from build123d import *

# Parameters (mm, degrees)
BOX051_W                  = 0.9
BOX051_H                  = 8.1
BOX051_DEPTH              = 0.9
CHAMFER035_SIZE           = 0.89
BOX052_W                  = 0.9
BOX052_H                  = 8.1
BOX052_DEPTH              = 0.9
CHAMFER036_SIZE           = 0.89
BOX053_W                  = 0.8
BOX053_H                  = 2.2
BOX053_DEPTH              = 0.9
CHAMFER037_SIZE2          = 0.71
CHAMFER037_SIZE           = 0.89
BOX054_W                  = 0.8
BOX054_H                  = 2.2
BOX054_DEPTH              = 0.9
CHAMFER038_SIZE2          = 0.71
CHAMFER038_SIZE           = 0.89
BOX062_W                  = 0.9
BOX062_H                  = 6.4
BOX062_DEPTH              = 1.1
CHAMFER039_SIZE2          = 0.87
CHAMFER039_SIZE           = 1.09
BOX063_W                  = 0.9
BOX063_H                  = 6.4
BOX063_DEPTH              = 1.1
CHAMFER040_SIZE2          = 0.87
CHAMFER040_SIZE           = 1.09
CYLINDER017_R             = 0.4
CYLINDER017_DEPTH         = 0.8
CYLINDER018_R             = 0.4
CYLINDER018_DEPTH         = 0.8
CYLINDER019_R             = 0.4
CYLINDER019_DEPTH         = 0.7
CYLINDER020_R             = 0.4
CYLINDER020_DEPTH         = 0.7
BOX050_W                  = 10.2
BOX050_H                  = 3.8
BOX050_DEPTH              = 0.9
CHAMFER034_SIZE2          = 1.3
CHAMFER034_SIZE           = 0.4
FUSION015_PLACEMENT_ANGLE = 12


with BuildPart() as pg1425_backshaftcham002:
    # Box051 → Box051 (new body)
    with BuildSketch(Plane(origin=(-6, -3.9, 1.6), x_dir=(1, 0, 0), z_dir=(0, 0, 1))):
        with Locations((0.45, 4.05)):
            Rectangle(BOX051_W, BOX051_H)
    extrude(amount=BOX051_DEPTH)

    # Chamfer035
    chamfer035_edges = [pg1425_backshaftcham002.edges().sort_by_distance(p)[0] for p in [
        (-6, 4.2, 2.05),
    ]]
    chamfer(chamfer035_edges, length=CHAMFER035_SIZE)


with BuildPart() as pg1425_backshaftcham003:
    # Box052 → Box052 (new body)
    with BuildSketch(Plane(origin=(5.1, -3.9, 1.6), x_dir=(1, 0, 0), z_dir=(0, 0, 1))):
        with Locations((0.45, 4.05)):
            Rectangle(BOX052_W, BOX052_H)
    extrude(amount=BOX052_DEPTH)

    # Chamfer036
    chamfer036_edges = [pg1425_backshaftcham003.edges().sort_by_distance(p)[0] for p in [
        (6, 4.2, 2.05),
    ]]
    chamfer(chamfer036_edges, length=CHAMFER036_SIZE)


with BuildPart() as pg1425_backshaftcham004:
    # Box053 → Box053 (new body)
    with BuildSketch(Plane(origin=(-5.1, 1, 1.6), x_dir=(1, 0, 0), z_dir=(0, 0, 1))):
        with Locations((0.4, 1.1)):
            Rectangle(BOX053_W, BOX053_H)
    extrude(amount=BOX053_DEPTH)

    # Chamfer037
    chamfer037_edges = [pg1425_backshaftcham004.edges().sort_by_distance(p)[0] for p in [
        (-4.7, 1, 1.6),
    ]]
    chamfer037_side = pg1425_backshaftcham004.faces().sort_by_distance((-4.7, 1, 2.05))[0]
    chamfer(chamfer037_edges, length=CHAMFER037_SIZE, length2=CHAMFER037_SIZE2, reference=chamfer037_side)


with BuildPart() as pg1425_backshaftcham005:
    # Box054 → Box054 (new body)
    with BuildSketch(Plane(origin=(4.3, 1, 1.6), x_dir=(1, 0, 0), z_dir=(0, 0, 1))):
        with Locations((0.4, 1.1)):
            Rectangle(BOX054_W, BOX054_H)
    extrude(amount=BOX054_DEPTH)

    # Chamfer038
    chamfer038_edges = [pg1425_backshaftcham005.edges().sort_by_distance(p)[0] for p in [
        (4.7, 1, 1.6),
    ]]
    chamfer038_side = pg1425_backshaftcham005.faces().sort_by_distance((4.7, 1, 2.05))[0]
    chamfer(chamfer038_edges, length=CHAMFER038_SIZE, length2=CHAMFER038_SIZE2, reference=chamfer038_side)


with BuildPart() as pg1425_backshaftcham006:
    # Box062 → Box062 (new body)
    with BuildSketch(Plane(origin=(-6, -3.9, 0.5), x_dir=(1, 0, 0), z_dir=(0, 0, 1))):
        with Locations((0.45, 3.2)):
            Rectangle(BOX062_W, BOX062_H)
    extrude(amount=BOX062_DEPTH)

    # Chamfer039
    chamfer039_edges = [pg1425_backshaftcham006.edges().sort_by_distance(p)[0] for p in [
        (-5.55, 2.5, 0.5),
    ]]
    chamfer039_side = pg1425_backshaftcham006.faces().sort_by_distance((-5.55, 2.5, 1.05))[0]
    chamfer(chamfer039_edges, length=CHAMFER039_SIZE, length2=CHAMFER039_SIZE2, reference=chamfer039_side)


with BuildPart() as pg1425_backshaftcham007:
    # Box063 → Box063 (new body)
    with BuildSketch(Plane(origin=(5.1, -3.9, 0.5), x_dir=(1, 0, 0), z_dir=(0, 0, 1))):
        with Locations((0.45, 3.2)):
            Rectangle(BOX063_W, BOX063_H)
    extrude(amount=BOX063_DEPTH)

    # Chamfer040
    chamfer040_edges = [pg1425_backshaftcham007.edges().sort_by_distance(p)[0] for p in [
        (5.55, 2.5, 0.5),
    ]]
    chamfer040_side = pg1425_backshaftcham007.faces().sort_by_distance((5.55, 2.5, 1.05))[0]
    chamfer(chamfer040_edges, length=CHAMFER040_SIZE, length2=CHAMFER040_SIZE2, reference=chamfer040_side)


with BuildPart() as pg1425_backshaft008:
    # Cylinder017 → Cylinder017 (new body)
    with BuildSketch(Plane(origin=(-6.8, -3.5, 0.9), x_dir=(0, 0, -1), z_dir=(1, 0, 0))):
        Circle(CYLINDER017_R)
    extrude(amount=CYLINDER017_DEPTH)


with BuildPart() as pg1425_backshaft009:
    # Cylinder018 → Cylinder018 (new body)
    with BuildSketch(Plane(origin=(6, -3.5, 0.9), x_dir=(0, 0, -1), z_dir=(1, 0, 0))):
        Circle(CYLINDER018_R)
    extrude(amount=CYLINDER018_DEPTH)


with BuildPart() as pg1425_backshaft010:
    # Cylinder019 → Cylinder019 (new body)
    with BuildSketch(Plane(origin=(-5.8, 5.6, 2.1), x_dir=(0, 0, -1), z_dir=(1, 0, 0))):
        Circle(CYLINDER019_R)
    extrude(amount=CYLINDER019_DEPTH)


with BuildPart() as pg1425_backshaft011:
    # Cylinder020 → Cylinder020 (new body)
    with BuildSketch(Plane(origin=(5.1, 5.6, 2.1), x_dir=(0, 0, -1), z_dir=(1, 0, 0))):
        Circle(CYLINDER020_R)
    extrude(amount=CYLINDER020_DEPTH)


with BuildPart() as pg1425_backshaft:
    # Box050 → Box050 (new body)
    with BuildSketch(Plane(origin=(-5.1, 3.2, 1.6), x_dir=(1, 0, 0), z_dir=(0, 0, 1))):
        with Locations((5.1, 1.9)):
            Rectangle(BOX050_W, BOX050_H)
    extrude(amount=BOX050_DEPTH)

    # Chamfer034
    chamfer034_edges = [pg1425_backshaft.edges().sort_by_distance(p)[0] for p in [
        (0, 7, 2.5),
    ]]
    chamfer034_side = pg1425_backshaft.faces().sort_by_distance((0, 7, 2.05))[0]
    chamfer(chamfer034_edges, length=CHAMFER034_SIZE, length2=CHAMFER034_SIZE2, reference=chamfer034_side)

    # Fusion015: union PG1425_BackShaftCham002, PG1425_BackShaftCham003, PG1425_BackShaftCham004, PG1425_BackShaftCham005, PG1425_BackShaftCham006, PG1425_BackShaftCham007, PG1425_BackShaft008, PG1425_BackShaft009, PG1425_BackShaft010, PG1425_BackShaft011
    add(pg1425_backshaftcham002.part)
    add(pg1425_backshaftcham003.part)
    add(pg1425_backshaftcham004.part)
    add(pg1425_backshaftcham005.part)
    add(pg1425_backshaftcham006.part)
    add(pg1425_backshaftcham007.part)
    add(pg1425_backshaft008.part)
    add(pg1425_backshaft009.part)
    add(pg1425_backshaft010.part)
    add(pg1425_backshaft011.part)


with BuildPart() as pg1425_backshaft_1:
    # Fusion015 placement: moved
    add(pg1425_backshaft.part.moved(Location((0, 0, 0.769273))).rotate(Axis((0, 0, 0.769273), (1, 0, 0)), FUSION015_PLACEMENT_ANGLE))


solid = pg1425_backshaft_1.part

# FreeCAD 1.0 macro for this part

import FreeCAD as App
import Part
import Sketcher


def edges_at(feature, points):
    """Names of the edges that pass closest to the given points."""
    edges = feature.Shape.Edges
    near = lambda p: min(range(len(edges)), key=lambda i: edges[i].distToShape(Part.Vertex(*p))[0])
    return sorted({f"Edge{near(p) + 1}" for p in points})

doc = App.newDocument("Part")
params = doc.addObject("Spreadsheet::Sheet", "Params")
for row, (alias, value) in enumerate([
    ("sketch1_width", "0.9 mm"),
    ("sketch1_height", "8.1 mm"),
    ("pad1_length", "0.9 mm"),
    ("chamfer_size", "0.89 mm"),
    ("sketch2_width", "0.9 mm"),
    ("sketch2_height", "8.1 mm"),
    ("pad2_length", "0.9 mm"),
    ("chamfer2_size", "0.89 mm"),
    ("sketch3_width", "0.8 mm"),
    ("sketch3_height", "2.2 mm"),
    ("pad3_length", "0.9 mm"),
    ("chamfer3_size", "0.89 mm"),
    ("chamfer3_size2", "0.71 mm"),
    ("sketch4_width", "0.8 mm"),
    ("sketch4_height", "2.2 mm"),
    ("pad4_length", "0.9 mm"),
    ("chamfer4_size", "0.89 mm"),
    ("chamfer4_size2", "0.71 mm"),
    ("sketch5_width", "0.9 mm"),
    ("sketch5_height", "6.4 mm"),
    ("pad5_length", "1.1 mm"),
    ("chamfer5_size", "1.09 mm"),
    ("chamfer5_size2", "0.87 mm"),
    ("sketch6_width", "0.9 mm"),
    ("sketch6_height", "6.4 mm"),
    ("pad6_length", "1.1 mm"),
    ("chamfer6_size", "1.09 mm"),
    ("chamfer6_size2", "0.87 mm"),
    ("sketch7_diameter", "0.8 mm"),
    ("pad7_length", "0.8 mm"),
    ("sketch8_diameter", "0.8 mm"),
    ("pad8_length", "0.8 mm"),
    ("sketch9_diameter", "0.8 mm"),
    ("pad9_length", "0.7 mm"),
    ("sketch10_diameter", "0.8 mm"),
    ("pad10_length", "0.7 mm"),
    ("sketch11_width", "10.2 mm"),
    ("sketch11_height", "3.8 mm"),
    ("pad11_length", "0.9 mm"),
    ("chamfer7_size", "0.4 mm"),
    ("chamfer7_size2", "1.3 mm"),
], start=1):
    params.set(f"A{row}", alias)
    params.set(f"B{row}", "=" + value)
    params.setAlias(f"B{row}", alias)

body = doc.addObject("PartDesign::Body", "Body")

# Sketch on XY plane
sketch1 = doc.addObject("Sketcher::SketchObject", "Sketch")
body.addObject(sketch1)
sketch1.AttachmentSupport = (doc.XY_Plane, [""])
sketch1.MapMode = "FlatFace"
sketch1.AttachmentOffset = App.Placement(App.Vector(0, 0, 1.6), App.Rotation())
sketch1.addGeometry(Part.LineSegment(App.Vector(-6, 4.2, 0), App.Vector(-6, -3.9, 0)), False)
sketch1.addGeometry(Part.LineSegment(App.Vector(-6, -3.9, 0), App.Vector(-5.1, -3.9, 0)), False)
sketch1.addGeometry(Part.LineSegment(App.Vector(-5.1, -3.9, 0), App.Vector(-5.1, 4.2, 0)), False)
sketch1.addGeometry(Part.LineSegment(App.Vector(-5.1, 4.2, 0), App.Vector(-6, 4.2, 0)), False)
sketch1.addConstraint(Sketcher.Constraint("Coincident", 0, 2, 1, 1))
sketch1.addConstraint(Sketcher.Constraint("Coincident", 1, 2, 2, 1))
sketch1.addConstraint(Sketcher.Constraint("Coincident", 2, 2, 3, 1))
sketch1.addConstraint(Sketcher.Constraint("Coincident", 3, 2, 0, 1))
sketch1.addConstraint(Sketcher.Constraint("Vertical", 0))
sketch1.addConstraint(Sketcher.Constraint("Horizontal", 1))
sketch1.addConstraint(Sketcher.Constraint("Vertical", 2))
sketch1.addConstraint(Sketcher.Constraint("Horizontal", 3))
sketch1.addConstraint(Sketcher.Constraint("DistanceX", 1, 1, 1, 2, 0.9))
sketch1.addConstraint(Sketcher.Constraint("DistanceY", 0, 2, 0, 1, 8.1))
sketch1.addConstraint(Sketcher.Constraint("DistanceX", 0, 2, -1, 1, 6.0))
sketch1.addConstraint(Sketcher.Constraint("DistanceY", 0, 2, -1, 1, 3.9))
sketch1.setExpression("Constraints[8]", "Params.sketch1_width")
sketch1.setExpression("Constraints[9]", "Params.sketch1_height")
pad1 = doc.addObject("PartDesign::Pad", "Pad")
body.addObject(pad1)
pad1.Profile = sketch1
pad1.setExpression("Length", "Params.pad1_length")
doc.recompute()

chamfer = doc.addObject("PartDesign::Chamfer", "Chamfer")
body.addObject(chamfer)
chamfer.Base = (pad1, edges_at(pad1, [(-6, 4.2, 2.05)]))
chamfer.setExpression("Size", "Params.chamfer_size")
body2 = doc.addObject("PartDesign::Body", "Body001")

# Sketch on XY plane
sketch2 = doc.addObject("Sketcher::SketchObject", "Sketch001")
body2.addObject(sketch2)
sketch2.AttachmentSupport = (doc.getObject("XY_Plane001"), [""])
sketch2.MapMode = "FlatFace"
sketch2.AttachmentOffset = App.Placement(App.Vector(0, 0, 1.6), App.Rotation())
sketch2.addGeometry(Part.LineSegment(App.Vector(5.1, 4.2, 0), App.Vector(5.1, -3.9, 0)), False)
sketch2.addGeometry(Part.LineSegment(App.Vector(5.1, -3.9, 0), App.Vector(6, -3.9, 0)), False)
sketch2.addGeometry(Part.LineSegment(App.Vector(6, -3.9, 0), App.Vector(6, 4.2, 0)), False)
sketch2.addGeometry(Part.LineSegment(App.Vector(6, 4.2, 0), App.Vector(5.1, 4.2, 0)), False)
sketch2.addConstraint(Sketcher.Constraint("Coincident", 0, 2, 1, 1))
sketch2.addConstraint(Sketcher.Constraint("Coincident", 1, 2, 2, 1))
sketch2.addConstraint(Sketcher.Constraint("Coincident", 2, 2, 3, 1))
sketch2.addConstraint(Sketcher.Constraint("Coincident", 3, 2, 0, 1))
sketch2.addConstraint(Sketcher.Constraint("Vertical", 0))
sketch2.addConstraint(Sketcher.Constraint("Horizontal", 1))
sketch2.addConstraint(Sketcher.Constraint("Vertical", 2))
sketch2.addConstraint(Sketcher.Constraint("Horizontal", 3))
sketch2.addConstraint(Sketcher.Constraint("DistanceX", 1, 1, 1, 2, 0.9))
sketch2.addConstraint(Sketcher.Constraint("DistanceY", 0, 2, 0, 1, 8.1))
sketch2.addConstraint(Sketcher.Constraint("DistanceX", -1, 1, 1, 2, 6.0))
sketch2.addConstraint(Sketcher.Constraint("DistanceY", 0, 2, -1, 1, 3.9))
sketch2.setExpression("Constraints[8]", "Params.sketch2_width")
sketch2.setExpression("Constraints[9]", "Params.sketch2_height")
pad2 = doc.addObject("PartDesign::Pad", "Pad001")
body2.addObject(pad2)
pad2.Profile = sketch2
pad2.setExpression("Length", "Params.pad2_length")
doc.recompute()

chamfer2 = doc.addObject("PartDesign::Chamfer", "Chamfer001")
body2.addObject(chamfer2)
chamfer2.Base = (pad2, edges_at(pad2, [(6, 4.2, 2.05)]))
chamfer2.setExpression("Size", "Params.chamfer2_size")
body3 = doc.addObject("PartDesign::Body", "Body002")

# Sketch on XY plane
sketch3 = doc.addObject("Sketcher::SketchObject", "Sketch002")
body3.addObject(sketch3)
sketch3.AttachmentSupport = (doc.getObject("XY_Plane002"), [""])
sketch3.MapMode = "FlatFace"
sketch3.AttachmentOffset = App.Placement(App.Vector(0, 0, 1.6), App.Rotation())
sketch3.addGeometry(Part.LineSegment(App.Vector(-5.1, 3.2, 0), App.Vector(-5.1, 1, 0)), False)
sketch3.addGeometry(Part.LineSegment(App.Vector(-5.1, 1, 0), App.Vector(-4.3, 1, 0)), False)
sketch3.addGeometry(Part.LineSegment(App.Vector(-4.3, 1, 0), App.Vector(-4.3, 3.2, 0)), False)
sketch3.addGeometry(Part.LineSegment(App.Vector(-4.3, 3.2, 0), App.Vector(-5.1, 3.2, 0)), False)
sketch3.addConstraint(Sketcher.Constraint("Coincident", 0, 2, 1, 1))
sketch3.addConstraint(Sketcher.Constraint("Coincident", 1, 2, 2, 1))
sketch3.addConstraint(Sketcher.Constraint("Coincident", 2, 2, 3, 1))
sketch3.addConstraint(Sketcher.Constraint("Coincident", 3, 2, 0, 1))
sketch3.addConstraint(Sketcher.Constraint("Vertical", 0))
sketch3.addConstraint(Sketcher.Constraint("Horizontal", 1))
sketch3.addConstraint(Sketcher.Constraint("Vertical", 2))
sketch3.addConstraint(Sketcher.Constraint("Horizontal", 3))
sketch3.addConstraint(Sketcher.Constraint("DistanceX", 1, 1, 1, 2, 0.8))
sketch3.addConstraint(Sketcher.Constraint("DistanceY", 0, 2, 0, 1, 2.2))
sketch3.addConstraint(Sketcher.Constraint("DistanceY", -1, 1, 0, 2, 1.0))
sketch3.addConstraint(Sketcher.Constraint("DistanceX", 0, 2, -1, 1, 5.1))
sketch3.setExpression("Constraints[8]", "Params.sketch3_width")
sketch3.setExpression("Constraints[9]", "Params.sketch3_height")
pad3 = doc.addObject("PartDesign::Pad", "Pad002")
body3.addObject(pad3)
pad3.Profile = sketch3
pad3.setExpression("Length", "Params.pad3_length")
doc.recompute()

chamfer3 = doc.addObject("PartDesign::Chamfer", "Chamfer002")
body3.addObject(chamfer3)
chamfer3.Base = (pad3, edges_at(pad3, [(-4.7, 1, 1.6)]))
chamfer3.ChamferType = "Two distances"
chamfer3.setExpression("Size", "Params.chamfer3_size")
chamfer3.setExpression("Size2", "Params.chamfer3_size2")
body4 = doc.addObject("PartDesign::Body", "Body003")

# Sketch on XY plane
sketch4 = doc.addObject("Sketcher::SketchObject", "Sketch003")
body4.addObject(sketch4)
sketch4.AttachmentSupport = (doc.getObject("XY_Plane003"), [""])
sketch4.MapMode = "FlatFace"
sketch4.AttachmentOffset = App.Placement(App.Vector(0, 0, 1.6), App.Rotation())
sketch4.addGeometry(Part.LineSegment(App.Vector(4.3, 3.2, 0), App.Vector(4.3, 1, 0)), False)
sketch4.addGeometry(Part.LineSegment(App.Vector(4.3, 1, 0), App.Vector(5.1, 1, 0)), False)
sketch4.addGeometry(Part.LineSegment(App.Vector(5.1, 1, 0), App.Vector(5.1, 3.2, 0)), False)
sketch4.addGeometry(Part.LineSegment(App.Vector(5.1, 3.2, 0), App.Vector(4.3, 3.2, 0)), False)
sketch4.addConstraint(Sketcher.Constraint("Coincident", 0, 2, 1, 1))
sketch4.addConstraint(Sketcher.Constraint("Coincident", 1, 2, 2, 1))
sketch4.addConstraint(Sketcher.Constraint("Coincident", 2, 2, 3, 1))
sketch4.addConstraint(Sketcher.Constraint("Coincident", 3, 2, 0, 1))
sketch4.addConstraint(Sketcher.Constraint("Vertical", 0))
sketch4.addConstraint(Sketcher.Constraint("Horizontal", 1))
sketch4.addConstraint(Sketcher.Constraint("Vertical", 2))
sketch4.addConstraint(Sketcher.Constraint("Horizontal", 3))
sketch4.addConstraint(Sketcher.Constraint("DistanceX", 1, 1, 1, 2, 0.8))
sketch4.addConstraint(Sketcher.Constraint("DistanceY", 0, 2, 0, 1, 2.2))
sketch4.addConstraint(Sketcher.Constraint("DistanceY", -1, 1, 0, 2, 1.0))
sketch4.addConstraint(Sketcher.Constraint("DistanceX", -1, 1, 0, 2, 4.3))
sketch4.setExpression("Constraints[8]", "Params.sketch4_width")
sketch4.setExpression("Constraints[9]", "Params.sketch4_height")
pad4 = doc.addObject("PartDesign::Pad", "Pad003")
body4.addObject(pad4)
pad4.Profile = sketch4
pad4.setExpression("Length", "Params.pad4_length")
doc.recompute()

chamfer4 = doc.addObject("PartDesign::Chamfer", "Chamfer003")
body4.addObject(chamfer4)
chamfer4.Base = (pad4, edges_at(pad4, [(4.7, 1, 1.6)]))
chamfer4.ChamferType = "Two distances"
chamfer4.setExpression("Size", "Params.chamfer4_size")
chamfer4.setExpression("Size2", "Params.chamfer4_size2")
body5 = doc.addObject("PartDesign::Body", "Body004")

# Sketch on XY plane
sketch5 = doc.addObject("Sketcher::SketchObject", "Sketch004")
body5.addObject(sketch5)
sketch5.AttachmentSupport = (doc.getObject("XY_Plane004"), [""])
sketch5.MapMode = "FlatFace"
sketch5.AttachmentOffset = App.Placement(App.Vector(0, 0, 0.5), App.Rotation())
sketch5.addGeometry(Part.LineSegment(App.Vector(-6, 2.5, 0), App.Vector(-6, -3.9, 0)), False)
sketch5.addGeometry(Part.LineSegment(App.Vector(-6, -3.9, 0), App.Vector(-5.1, -3.9, 0)), False)
sketch5.addGeometry(Part.LineSegment(App.Vector(-5.1, -3.9, 0), App.Vector(-5.1, 2.5, 0)), False)
sketch5.addGeometry(Part.LineSegment(App.Vector(-5.1, 2.5, 0), App.Vector(-6, 2.5, 0)), False)
sketch5.addConstraint(Sketcher.Constraint("Coincident", 0, 2, 1, 1))
sketch5.addConstraint(Sketcher.Constraint("Coincident", 1, 2, 2, 1))
sketch5.addConstraint(Sketcher.Constraint("Coincident", 2, 2, 3, 1))
sketch5.addConstraint(Sketcher.Constraint("Coincident", 3, 2, 0, 1))
sketch5.addConstraint(Sketcher.Constraint("Vertical", 0))
sketch5.addConstraint(Sketcher.Constraint("Horizontal", 1))
sketch5.addConstraint(Sketcher.Constraint("Vertical", 2))
sketch5.addConstraint(Sketcher.Constraint("Horizontal", 3))
sketch5.addConstraint(Sketcher.Constraint("DistanceX", 1, 1, 1, 2, 0.9))
sketch5.addConstraint(Sketcher.Constraint("DistanceY", 0, 2, 0, 1, 6.4))
sketch5.addConstraint(Sketcher.Constraint("DistanceX", 0, 2, -1, 1, 6.0))
sketch5.addConstraint(Sketcher.Constraint("DistanceY", 0, 2, -1, 1, 3.9))
sketch5.setExpression("Constraints[8]", "Params.sketch5_width")
sketch5.setExpression("Constraints[9]", "Params.sketch5_height")
pad5 = doc.addObject("PartDesign::Pad", "Pad004")
body5.addObject(pad5)
pad5.Profile = sketch5
pad5.setExpression("Length", "Params.pad5_length")
doc.recompute()

chamfer5 = doc.addObject("PartDesign::Chamfer", "Chamfer004")
body5.addObject(chamfer5)
chamfer5.Base = (pad5, edges_at(pad5, [(-5.55, 2.5, 0.5)]))
chamfer5.ChamferType = "Two distances"
chamfer5.setExpression("Size", "Params.chamfer5_size")
chamfer5.setExpression("Size2", "Params.chamfer5_size2")
body6 = doc.addObject("PartDesign::Body", "Body005")

# Sketch on XY plane
sketch6 = doc.addObject("Sketcher::SketchObject", "Sketch005")
body6.addObject(sketch6)
sketch6.AttachmentSupport = (doc.getObject("XY_Plane005"), [""])
sketch6.MapMode = "FlatFace"
sketch6.AttachmentOffset = App.Placement(App.Vector(0, 0, 0.5), App.Rotation())
sketch6.addGeometry(Part.LineSegment(App.Vector(5.1, 2.5, 0), App.Vector(5.1, -3.9, 0)), False)
sketch6.addGeometry(Part.LineSegment(App.Vector(5.1, -3.9, 0), App.Vector(6, -3.9, 0)), False)
sketch6.addGeometry(Part.LineSegment(App.Vector(6, -3.9, 0), App.Vector(6, 2.5, 0)), False)
sketch6.addGeometry(Part.LineSegment(App.Vector(6, 2.5, 0), App.Vector(5.1, 2.5, 0)), False)
sketch6.addConstraint(Sketcher.Constraint("Coincident", 0, 2, 1, 1))
sketch6.addConstraint(Sketcher.Constraint("Coincident", 1, 2, 2, 1))
sketch6.addConstraint(Sketcher.Constraint("Coincident", 2, 2, 3, 1))
sketch6.addConstraint(Sketcher.Constraint("Coincident", 3, 2, 0, 1))
sketch6.addConstraint(Sketcher.Constraint("Vertical", 0))
sketch6.addConstraint(Sketcher.Constraint("Horizontal", 1))
sketch6.addConstraint(Sketcher.Constraint("Vertical", 2))
sketch6.addConstraint(Sketcher.Constraint("Horizontal", 3))
sketch6.addConstraint(Sketcher.Constraint("DistanceX", 1, 1, 1, 2, 0.9))
sketch6.addConstraint(Sketcher.Constraint("DistanceY", 0, 2, 0, 1, 6.4))
sketch6.addConstraint(Sketcher.Constraint("DistanceX", -1, 1, 1, 2, 6.0))
sketch6.addConstraint(Sketcher.Constraint("DistanceY", 0, 2, -1, 1, 3.9))
sketch6.setExpression("Constraints[8]", "Params.sketch6_width")
sketch6.setExpression("Constraints[9]", "Params.sketch6_height")
pad6 = doc.addObject("PartDesign::Pad", "Pad005")
body6.addObject(pad6)
pad6.Profile = sketch6
pad6.setExpression("Length", "Params.pad6_length")
doc.recompute()

chamfer6 = doc.addObject("PartDesign::Chamfer", "Chamfer005")
body6.addObject(chamfer6)
chamfer6.Base = (pad6, edges_at(pad6, [(5.55, 2.5, 0.5)]))
chamfer6.ChamferType = "Two distances"
chamfer6.setExpression("Size", "Params.chamfer6_size")
chamfer6.setExpression("Size2", "Params.chamfer6_size2")
body7 = doc.addObject("PartDesign::Body", "Body006")

# Sketch on YZ plane
sketch7 = doc.addObject("Sketcher::SketchObject", "Sketch006")
body7.addObject(sketch7)
sketch7.AttachmentSupport = (doc.getObject("YZ_Plane006"), [""])
sketch7.MapMode = "FlatFace"
sketch7.AttachmentOffset = App.Placement(App.Vector(0, 0, -6.8), App.Rotation())
sketch7.addGeometry(Part.Circle(App.Vector(-3.5, 0.9, 0), App.Vector(0, 0, 1), 0.4), False)
sketch7.addConstraint(Sketcher.Constraint("Diameter", 0, 0.8))
sketch7.addConstraint(Sketcher.Constraint("DistanceX", 0, 3, -1, 1, 3.5))
sketch7.addConstraint(Sketcher.Constraint("DistanceY", -1, 1, 0, 3, 0.9))
sketch7.setExpression("Constraints[0]", "Params.sketch7_diameter")
pad7 = doc.addObject("PartDesign::Pad", "Pad006")
body7.addObject(pad7)
pad7.Profile = sketch7
pad7.setExpression("Length", "Params.pad7_length")
body8 = doc.addObject("PartDesign::Body", "Body007")

# Sketch on YZ plane
sketch8 = doc.addObject("Sketcher::SketchObject", "Sketch007")
body8.addObject(sketch8)
sketch8.AttachmentSupport = (doc.getObject("YZ_Plane007"), [""])
sketch8.MapMode = "FlatFace"
sketch8.AttachmentOffset = App.Placement(App.Vector(0, 0, 6), App.Rotation())
sketch8.addGeometry(Part.Circle(App.Vector(-3.5, 0.9, 0), App.Vector(0, 0, 1), 0.4), False)
sketch8.addConstraint(Sketcher.Constraint("Diameter", 0, 0.8))
sketch8.addConstraint(Sketcher.Constraint("DistanceX", 0, 3, -1, 1, 3.5))
sketch8.addConstraint(Sketcher.Constraint("DistanceY", -1, 1, 0, 3, 0.9))
sketch8.setExpression("Constraints[0]", "Params.sketch8_diameter")
pad8 = doc.addObject("PartDesign::Pad", "Pad007")
body8.addObject(pad8)
pad8.Profile = sketch8
pad8.setExpression("Length", "Params.pad8_length")
body9 = doc.addObject("PartDesign::Body", "Body008")

# Sketch on YZ plane
sketch9 = doc.addObject("Sketcher::SketchObject", "Sketch008")
body9.addObject(sketch9)
sketch9.AttachmentSupport = (doc.getObject("YZ_Plane008"), [""])
sketch9.MapMode = "FlatFace"
sketch9.AttachmentOffset = App.Placement(App.Vector(0, 0, -5.8), App.Rotation())
sketch9.addGeometry(Part.Circle(App.Vector(5.6, 2.1, 0), App.Vector(0, 0, 1), 0.4), False)
sketch9.addConstraint(Sketcher.Constraint("Diameter", 0, 0.8))
sketch9.addConstraint(Sketcher.Constraint("DistanceX", -1, 1, 0, 3, 5.6))
sketch9.addConstraint(Sketcher.Constraint("DistanceY", -1, 1, 0, 3, 2.1))
sketch9.setExpression("Constraints[0]", "Params.sketch9_diameter")
pad9 = doc.addObject("PartDesign::Pad", "Pad008")
body9.addObject(pad9)
pad9.Profile = sketch9
pad9.setExpression("Length", "Params.pad9_length")
body10 = doc.addObject("PartDesign::Body", "Body009")

# Sketch on YZ plane
sketch10 = doc.addObject("Sketcher::SketchObject", "Sketch009")
body10.addObject(sketch10)
sketch10.AttachmentSupport = (doc.getObject("YZ_Plane009"), [""])
sketch10.MapMode = "FlatFace"
sketch10.AttachmentOffset = App.Placement(App.Vector(0, 0, 5.1), App.Rotation())
sketch10.addGeometry(Part.Circle(App.Vector(5.6, 2.1, 0), App.Vector(0, 0, 1), 0.4), False)
sketch10.addConstraint(Sketcher.Constraint("Diameter", 0, 0.8))
sketch10.addConstraint(Sketcher.Constraint("DistanceX", -1, 1, 0, 3, 5.6))
sketch10.addConstraint(Sketcher.Constraint("DistanceY", -1, 1, 0, 3, 2.1))
sketch10.setExpression("Constraints[0]", "Params.sketch10_diameter")
pad10 = doc.addObject("PartDesign::Pad", "Pad009")
body10.addObject(pad10)
pad10.Profile = sketch10
pad10.setExpression("Length", "Params.pad10_length")
body11 = doc.addObject("PartDesign::Body", "Body010")

# Sketch on XY plane
sketch11 = doc.addObject("Sketcher::SketchObject", "Sketch010")
body11.addObject(sketch11)
sketch11.AttachmentSupport = (doc.getObject("XY_Plane010"), [""])
sketch11.MapMode = "FlatFace"
sketch11.AttachmentOffset = App.Placement(App.Vector(0, 0, 1.6), App.Rotation())
sketch11.addGeometry(Part.LineSegment(App.Vector(-5.1, 7, 0), App.Vector(-5.1, 3.2, 0)), False)
sketch11.addGeometry(Part.LineSegment(App.Vector(-5.1, 3.2, 0), App.Vector(5.1, 3.2, 0)), False)
sketch11.addGeometry(Part.LineSegment(App.Vector(5.1, 3.2, 0), App.Vector(5.1, 7, 0)), False)
sketch11.addGeometry(Part.LineSegment(App.Vector(5.1, 7, 0), App.Vector(-5.1, 7, 0)), False)
sketch11.addConstraint(Sketcher.Constraint("Coincident", 0, 2, 1, 1))
sketch11.addConstraint(Sketcher.Constraint("Coincident", 1, 2, 2, 1))
sketch11.addConstraint(Sketcher.Constraint("Coincident", 2, 2, 3, 1))
sketch11.addConstraint(Sketcher.Constraint("Coincident", 3, 2, 0, 1))
sketch11.addConstraint(Sketcher.Constraint("Vertical", 0))
sketch11.addConstraint(Sketcher.Constraint("Horizontal", 1))
sketch11.addConstraint(Sketcher.Constraint("Vertical", 2))
sketch11.addConstraint(Sketcher.Constraint("Horizontal", 3))
sketch11.addConstraint(Sketcher.Constraint("DistanceX", 1, 1, 1, 2, 10.2))
sketch11.addConstraint(Sketcher.Constraint("DistanceY", 0, 2, 0, 1, 3.8))
sketch11.addConstraint(Sketcher.Constraint("DistanceY", -1, 1, 2, 2, 7.0))
sketch11.addConstraint(Sketcher.Constraint("DistanceX", 0, 2, -1, 1, 5.1))
sketch11.setExpression("Constraints[8]", "Params.sketch11_width")
sketch11.setExpression("Constraints[9]", "Params.sketch11_height")
pad11 = doc.addObject("PartDesign::Pad", "Pad010")
body11.addObject(pad11)
pad11.Profile = sketch11
pad11.setExpression("Length", "Params.pad11_length")
doc.recompute()

chamfer7 = doc.addObject("PartDesign::Chamfer", "Chamfer006")
body11.addObject(chamfer7)
chamfer7.Base = (pad11, edges_at(pad11, [(0, 7, 2.5)]))
chamfer7.ChamferType = "Two distances"
chamfer7.setExpression("Size", "Params.chamfer7_size")
chamfer7.setExpression("Size2", "Params.chamfer7_size2")
doc.recompute()

boolean = doc.addObject("PartDesign::Boolean", "Boolean")
body11.addObject(boolean)
boolean.Type = "Fuse"
boolean.addObjects([body])
doc.recompute()

boolean2 = doc.addObject("PartDesign::Boolean", "Boolean001")
body11.addObject(boolean2)
boolean2.Type = "Fuse"
boolean2.addObjects([body2])
doc.recompute()

boolean3 = doc.addObject("PartDesign::Boolean", "Boolean002")
body11.addObject(boolean3)
boolean3.Type = "Fuse"
boolean3.addObjects([body3])
doc.recompute()

boolean4 = doc.addObject("PartDesign::Boolean", "Boolean003")
body11.addObject(boolean4)
boolean4.Type = "Fuse"
boolean4.addObjects([body4])
doc.recompute()

boolean5 = doc.addObject("PartDesign::Boolean", "Boolean004")
body11.addObject(boolean5)
boolean5.Type = "Fuse"
boolean5.addObjects([body5])
doc.recompute()

boolean6 = doc.addObject("PartDesign::Boolean", "Boolean005")
body11.addObject(boolean6)
boolean6.Type = "Fuse"
boolean6.addObjects([body6])
doc.recompute()

boolean7 = doc.addObject("PartDesign::Boolean", "Boolean006")
body11.addObject(boolean7)
boolean7.Type = "Fuse"
boolean7.addObjects([body7])
doc.recompute()

boolean8 = doc.addObject("PartDesign::Boolean", "Boolean007")
body11.addObject(boolean8)
boolean8.Type = "Fuse"
boolean8.addObjects([body8])
doc.recompute()

boolean9 = doc.addObject("PartDesign::Boolean", "Boolean008")
body11.addObject(boolean9)
boolean9.Type = "Fuse"
boolean9.addObjects([body9])
doc.recompute()

boolean10 = doc.addObject("PartDesign::Boolean", "Boolean009")
body11.addObject(boolean10)
boolean10.Type = "Fuse"
boolean10.addObjects([body10])
body12 = doc.addObject("PartDesign::Body", "Body011")
doc.recompute()

body11.Placement = App.Placement(App.Vector(0, 0, 0.769273), App.Rotation(App.Vector(1, 0, 0), 12))
boolean11 = doc.addObject("PartDesign::Boolean", "Boolean010")
body12.addObject(boolean11)
boolean11.Type = "Fuse"
boolean11.addObjects([body11])

doc.recompute()
